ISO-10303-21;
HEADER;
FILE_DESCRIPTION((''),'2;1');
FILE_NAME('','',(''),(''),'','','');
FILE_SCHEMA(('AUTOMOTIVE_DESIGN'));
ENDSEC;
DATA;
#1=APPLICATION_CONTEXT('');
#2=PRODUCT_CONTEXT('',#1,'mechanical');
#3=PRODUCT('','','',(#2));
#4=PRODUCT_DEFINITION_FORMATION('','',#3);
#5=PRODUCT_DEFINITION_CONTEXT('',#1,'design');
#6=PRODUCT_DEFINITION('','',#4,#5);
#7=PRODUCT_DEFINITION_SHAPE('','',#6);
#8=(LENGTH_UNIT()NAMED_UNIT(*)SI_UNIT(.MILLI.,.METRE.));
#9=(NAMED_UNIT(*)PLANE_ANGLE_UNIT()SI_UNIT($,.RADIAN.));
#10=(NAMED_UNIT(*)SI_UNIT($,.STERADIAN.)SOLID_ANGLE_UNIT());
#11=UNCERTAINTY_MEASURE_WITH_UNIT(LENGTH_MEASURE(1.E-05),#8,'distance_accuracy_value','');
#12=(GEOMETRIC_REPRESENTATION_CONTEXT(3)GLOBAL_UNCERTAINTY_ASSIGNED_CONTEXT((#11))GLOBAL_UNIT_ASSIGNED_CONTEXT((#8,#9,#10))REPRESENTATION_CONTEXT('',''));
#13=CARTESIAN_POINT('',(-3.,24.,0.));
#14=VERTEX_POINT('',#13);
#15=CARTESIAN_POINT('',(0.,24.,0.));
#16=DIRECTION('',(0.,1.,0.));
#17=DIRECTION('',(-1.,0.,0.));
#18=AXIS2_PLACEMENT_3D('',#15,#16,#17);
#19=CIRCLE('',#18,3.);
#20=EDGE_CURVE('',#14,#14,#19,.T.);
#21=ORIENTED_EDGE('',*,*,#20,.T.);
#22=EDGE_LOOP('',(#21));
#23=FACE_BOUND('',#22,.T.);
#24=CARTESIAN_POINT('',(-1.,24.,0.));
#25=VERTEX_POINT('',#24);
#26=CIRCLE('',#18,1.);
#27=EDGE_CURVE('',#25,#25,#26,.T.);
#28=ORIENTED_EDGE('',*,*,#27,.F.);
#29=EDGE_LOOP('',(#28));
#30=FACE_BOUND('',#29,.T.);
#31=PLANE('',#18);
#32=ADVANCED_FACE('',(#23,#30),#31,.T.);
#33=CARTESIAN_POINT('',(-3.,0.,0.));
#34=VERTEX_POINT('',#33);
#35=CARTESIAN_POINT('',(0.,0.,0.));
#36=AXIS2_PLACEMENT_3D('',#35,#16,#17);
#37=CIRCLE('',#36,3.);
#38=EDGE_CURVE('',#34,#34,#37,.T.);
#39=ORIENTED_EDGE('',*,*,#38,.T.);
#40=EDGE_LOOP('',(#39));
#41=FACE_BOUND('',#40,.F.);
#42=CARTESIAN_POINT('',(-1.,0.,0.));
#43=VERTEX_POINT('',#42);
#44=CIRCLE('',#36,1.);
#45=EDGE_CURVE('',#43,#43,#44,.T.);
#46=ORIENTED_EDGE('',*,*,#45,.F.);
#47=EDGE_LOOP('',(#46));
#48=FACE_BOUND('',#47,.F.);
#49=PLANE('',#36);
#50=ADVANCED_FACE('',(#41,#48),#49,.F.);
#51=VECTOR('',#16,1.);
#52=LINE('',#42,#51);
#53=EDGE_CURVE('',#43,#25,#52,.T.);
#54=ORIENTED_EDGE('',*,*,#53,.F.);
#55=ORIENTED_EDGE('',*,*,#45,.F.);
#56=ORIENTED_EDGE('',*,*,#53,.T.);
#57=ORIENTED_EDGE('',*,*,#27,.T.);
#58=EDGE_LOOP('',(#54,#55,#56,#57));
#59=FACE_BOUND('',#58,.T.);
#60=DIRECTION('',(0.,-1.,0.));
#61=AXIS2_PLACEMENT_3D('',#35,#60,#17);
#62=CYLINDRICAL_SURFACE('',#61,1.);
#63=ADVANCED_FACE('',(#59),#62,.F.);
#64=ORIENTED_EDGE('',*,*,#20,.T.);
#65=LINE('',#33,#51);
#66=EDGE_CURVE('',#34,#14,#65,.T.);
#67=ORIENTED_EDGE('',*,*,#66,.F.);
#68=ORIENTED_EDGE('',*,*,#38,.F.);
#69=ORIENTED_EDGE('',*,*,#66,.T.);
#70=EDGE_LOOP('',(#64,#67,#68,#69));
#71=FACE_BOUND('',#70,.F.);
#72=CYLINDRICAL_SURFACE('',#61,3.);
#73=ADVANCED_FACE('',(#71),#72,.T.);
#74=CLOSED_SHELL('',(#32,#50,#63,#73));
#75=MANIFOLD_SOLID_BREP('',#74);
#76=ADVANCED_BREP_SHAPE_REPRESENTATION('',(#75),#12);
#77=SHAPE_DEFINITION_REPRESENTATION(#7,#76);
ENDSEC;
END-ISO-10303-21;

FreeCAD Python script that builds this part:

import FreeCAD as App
import Part
import Sketcher
from FreeCAD import Vector
Q = App.Units.Quantity

doc = App.newDocument("Part")
body = doc.addObject("PartDesign::Body", "Body")

# Sketch on XZ plane
sketch1 = body.newObject("Sketcher::SketchObject", "Sketch")
sketch1.AttachmentSupport = (doc.getObject("XZ_Plane"), [""])
sketch1.MapMode = "FlatFace"
sketch1.addGeometry([
    Part.Circle(Vector(0, 0, 0), Vector(0, 0, 1), 3),
    Part.Circle(Vector(0, 0, 0), Vector(0, 0, 1), 1),
], False)
sketch1.addConstraint([
    Sketcher.Constraint("Coincident", 0, 3, -1, 1),
    Sketcher.Constraint("Coincident", 1, 3, -1, 1),
    Sketcher.Constraint("Diameter", 0, Q("6 mm")),
    Sketcher.Constraint("Diameter", 1, Q("2 mm")),
])
pad1 = body.newObject("PartDesign::Pad", "Pad")
pad1.Profile = sketch1
pad1.Length = 24
pad1.Reversed = True

doc.recompute()
